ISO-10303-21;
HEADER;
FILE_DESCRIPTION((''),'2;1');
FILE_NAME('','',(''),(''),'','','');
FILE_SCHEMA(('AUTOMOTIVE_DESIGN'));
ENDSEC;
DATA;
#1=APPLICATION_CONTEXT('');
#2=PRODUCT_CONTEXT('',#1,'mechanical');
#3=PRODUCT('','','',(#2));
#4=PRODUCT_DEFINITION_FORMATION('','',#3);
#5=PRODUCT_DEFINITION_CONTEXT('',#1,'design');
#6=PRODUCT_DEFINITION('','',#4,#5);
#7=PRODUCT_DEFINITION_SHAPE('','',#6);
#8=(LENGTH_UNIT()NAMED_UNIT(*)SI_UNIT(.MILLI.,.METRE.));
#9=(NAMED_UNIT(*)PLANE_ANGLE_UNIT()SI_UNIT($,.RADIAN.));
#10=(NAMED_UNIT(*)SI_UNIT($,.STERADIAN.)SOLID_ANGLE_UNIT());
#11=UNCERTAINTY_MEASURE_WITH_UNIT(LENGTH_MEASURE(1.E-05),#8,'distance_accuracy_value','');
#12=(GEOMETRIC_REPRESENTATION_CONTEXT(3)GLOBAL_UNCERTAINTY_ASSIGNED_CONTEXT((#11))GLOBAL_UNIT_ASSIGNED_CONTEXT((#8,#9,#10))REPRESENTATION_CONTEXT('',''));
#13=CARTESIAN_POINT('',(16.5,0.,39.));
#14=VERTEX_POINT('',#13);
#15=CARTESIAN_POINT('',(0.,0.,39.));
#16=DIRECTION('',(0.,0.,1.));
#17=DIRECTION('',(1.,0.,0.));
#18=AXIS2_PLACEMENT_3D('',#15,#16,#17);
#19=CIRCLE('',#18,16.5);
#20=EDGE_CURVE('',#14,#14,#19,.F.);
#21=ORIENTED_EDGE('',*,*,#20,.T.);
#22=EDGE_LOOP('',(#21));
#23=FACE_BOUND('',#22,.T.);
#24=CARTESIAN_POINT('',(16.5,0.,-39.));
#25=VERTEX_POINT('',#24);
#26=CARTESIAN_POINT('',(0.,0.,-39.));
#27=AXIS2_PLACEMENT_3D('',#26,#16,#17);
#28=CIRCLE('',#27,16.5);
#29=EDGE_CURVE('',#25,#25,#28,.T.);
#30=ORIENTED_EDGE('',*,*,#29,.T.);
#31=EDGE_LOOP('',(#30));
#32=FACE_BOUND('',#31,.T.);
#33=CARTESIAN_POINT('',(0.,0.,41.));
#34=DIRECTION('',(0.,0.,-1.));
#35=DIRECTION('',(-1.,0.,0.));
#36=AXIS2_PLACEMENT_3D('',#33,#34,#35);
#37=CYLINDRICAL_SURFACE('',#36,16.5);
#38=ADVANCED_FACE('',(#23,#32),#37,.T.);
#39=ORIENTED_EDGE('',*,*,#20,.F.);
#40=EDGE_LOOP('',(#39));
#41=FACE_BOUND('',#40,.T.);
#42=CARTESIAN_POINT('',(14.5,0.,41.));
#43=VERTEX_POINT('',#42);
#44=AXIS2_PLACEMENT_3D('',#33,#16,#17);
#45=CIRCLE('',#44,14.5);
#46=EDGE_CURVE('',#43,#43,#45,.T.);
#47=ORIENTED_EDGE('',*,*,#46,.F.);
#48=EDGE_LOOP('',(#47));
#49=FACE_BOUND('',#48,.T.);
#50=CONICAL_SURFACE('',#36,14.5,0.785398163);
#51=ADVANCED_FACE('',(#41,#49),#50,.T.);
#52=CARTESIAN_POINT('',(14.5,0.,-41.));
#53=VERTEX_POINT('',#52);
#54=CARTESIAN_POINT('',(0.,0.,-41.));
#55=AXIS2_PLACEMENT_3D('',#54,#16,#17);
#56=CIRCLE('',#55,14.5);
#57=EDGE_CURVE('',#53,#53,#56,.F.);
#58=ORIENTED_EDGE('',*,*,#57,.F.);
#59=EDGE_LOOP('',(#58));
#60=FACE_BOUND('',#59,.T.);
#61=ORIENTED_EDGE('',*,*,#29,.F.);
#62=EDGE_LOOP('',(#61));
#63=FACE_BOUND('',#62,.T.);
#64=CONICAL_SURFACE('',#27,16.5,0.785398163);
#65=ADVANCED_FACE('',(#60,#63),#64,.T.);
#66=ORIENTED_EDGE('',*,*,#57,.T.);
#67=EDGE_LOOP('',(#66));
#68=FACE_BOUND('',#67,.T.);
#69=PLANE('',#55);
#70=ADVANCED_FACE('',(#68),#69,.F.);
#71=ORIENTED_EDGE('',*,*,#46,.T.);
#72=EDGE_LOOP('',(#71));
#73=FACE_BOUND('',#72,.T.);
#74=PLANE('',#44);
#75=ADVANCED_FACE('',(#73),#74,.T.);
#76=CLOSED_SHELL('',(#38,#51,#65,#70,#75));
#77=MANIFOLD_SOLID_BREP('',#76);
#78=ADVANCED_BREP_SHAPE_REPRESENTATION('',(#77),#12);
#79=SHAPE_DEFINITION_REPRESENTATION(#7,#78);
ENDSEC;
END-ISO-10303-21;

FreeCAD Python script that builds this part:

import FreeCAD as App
import Part
import Sketcher
from FreeCAD import Vector
Q = App.Units.Quantity


def edges_at(feature, points):
    """Names of the edges that pass closest to the given points."""
    edges = feature.Shape.Edges
    near = lambda p: min(range(len(edges)), key=lambda i: edges[i].distToShape(Part.Vertex(*p))[0])
    return sorted({f"Edge{near(p) + 1}" for p in points})

doc = App.newDocument("Part")
body = doc.addObject("PartDesign::Body", "Body")

# Sketch on XY plane
sketch1 = body.newObject("Sketcher::SketchObject", "Sketch")
sketch1.AttachmentSupport = (doc.getObject("XY_Plane"), [""])
sketch1.MapMode = "FlatFace"
sketch1.addGeometry(Part.Circle(Vector(0, 0, 0), Vector(0, 0, 1), 16.5), False)
sketch1.addConstraint([
    Sketcher.Constraint("Coincident", 0, 3, -1, 1),
    Sketcher.Constraint("Diameter", 0, Q("33 mm")),
])
pad1 = body.newObject("PartDesign::Pad", "Pad")
pad1.Profile = sketch1
pad1.Length = 82
pad1.Midplane = True
doc.recompute()

chamfer = body.newObject("PartDesign::Chamfer", "Chamfer")
chamfer.Base = (pad1, edges_at(pad1, [(-16.5, 0, -41), (-16.5, 0, 41)]))
chamfer.Size = 2

doc.recompute()
